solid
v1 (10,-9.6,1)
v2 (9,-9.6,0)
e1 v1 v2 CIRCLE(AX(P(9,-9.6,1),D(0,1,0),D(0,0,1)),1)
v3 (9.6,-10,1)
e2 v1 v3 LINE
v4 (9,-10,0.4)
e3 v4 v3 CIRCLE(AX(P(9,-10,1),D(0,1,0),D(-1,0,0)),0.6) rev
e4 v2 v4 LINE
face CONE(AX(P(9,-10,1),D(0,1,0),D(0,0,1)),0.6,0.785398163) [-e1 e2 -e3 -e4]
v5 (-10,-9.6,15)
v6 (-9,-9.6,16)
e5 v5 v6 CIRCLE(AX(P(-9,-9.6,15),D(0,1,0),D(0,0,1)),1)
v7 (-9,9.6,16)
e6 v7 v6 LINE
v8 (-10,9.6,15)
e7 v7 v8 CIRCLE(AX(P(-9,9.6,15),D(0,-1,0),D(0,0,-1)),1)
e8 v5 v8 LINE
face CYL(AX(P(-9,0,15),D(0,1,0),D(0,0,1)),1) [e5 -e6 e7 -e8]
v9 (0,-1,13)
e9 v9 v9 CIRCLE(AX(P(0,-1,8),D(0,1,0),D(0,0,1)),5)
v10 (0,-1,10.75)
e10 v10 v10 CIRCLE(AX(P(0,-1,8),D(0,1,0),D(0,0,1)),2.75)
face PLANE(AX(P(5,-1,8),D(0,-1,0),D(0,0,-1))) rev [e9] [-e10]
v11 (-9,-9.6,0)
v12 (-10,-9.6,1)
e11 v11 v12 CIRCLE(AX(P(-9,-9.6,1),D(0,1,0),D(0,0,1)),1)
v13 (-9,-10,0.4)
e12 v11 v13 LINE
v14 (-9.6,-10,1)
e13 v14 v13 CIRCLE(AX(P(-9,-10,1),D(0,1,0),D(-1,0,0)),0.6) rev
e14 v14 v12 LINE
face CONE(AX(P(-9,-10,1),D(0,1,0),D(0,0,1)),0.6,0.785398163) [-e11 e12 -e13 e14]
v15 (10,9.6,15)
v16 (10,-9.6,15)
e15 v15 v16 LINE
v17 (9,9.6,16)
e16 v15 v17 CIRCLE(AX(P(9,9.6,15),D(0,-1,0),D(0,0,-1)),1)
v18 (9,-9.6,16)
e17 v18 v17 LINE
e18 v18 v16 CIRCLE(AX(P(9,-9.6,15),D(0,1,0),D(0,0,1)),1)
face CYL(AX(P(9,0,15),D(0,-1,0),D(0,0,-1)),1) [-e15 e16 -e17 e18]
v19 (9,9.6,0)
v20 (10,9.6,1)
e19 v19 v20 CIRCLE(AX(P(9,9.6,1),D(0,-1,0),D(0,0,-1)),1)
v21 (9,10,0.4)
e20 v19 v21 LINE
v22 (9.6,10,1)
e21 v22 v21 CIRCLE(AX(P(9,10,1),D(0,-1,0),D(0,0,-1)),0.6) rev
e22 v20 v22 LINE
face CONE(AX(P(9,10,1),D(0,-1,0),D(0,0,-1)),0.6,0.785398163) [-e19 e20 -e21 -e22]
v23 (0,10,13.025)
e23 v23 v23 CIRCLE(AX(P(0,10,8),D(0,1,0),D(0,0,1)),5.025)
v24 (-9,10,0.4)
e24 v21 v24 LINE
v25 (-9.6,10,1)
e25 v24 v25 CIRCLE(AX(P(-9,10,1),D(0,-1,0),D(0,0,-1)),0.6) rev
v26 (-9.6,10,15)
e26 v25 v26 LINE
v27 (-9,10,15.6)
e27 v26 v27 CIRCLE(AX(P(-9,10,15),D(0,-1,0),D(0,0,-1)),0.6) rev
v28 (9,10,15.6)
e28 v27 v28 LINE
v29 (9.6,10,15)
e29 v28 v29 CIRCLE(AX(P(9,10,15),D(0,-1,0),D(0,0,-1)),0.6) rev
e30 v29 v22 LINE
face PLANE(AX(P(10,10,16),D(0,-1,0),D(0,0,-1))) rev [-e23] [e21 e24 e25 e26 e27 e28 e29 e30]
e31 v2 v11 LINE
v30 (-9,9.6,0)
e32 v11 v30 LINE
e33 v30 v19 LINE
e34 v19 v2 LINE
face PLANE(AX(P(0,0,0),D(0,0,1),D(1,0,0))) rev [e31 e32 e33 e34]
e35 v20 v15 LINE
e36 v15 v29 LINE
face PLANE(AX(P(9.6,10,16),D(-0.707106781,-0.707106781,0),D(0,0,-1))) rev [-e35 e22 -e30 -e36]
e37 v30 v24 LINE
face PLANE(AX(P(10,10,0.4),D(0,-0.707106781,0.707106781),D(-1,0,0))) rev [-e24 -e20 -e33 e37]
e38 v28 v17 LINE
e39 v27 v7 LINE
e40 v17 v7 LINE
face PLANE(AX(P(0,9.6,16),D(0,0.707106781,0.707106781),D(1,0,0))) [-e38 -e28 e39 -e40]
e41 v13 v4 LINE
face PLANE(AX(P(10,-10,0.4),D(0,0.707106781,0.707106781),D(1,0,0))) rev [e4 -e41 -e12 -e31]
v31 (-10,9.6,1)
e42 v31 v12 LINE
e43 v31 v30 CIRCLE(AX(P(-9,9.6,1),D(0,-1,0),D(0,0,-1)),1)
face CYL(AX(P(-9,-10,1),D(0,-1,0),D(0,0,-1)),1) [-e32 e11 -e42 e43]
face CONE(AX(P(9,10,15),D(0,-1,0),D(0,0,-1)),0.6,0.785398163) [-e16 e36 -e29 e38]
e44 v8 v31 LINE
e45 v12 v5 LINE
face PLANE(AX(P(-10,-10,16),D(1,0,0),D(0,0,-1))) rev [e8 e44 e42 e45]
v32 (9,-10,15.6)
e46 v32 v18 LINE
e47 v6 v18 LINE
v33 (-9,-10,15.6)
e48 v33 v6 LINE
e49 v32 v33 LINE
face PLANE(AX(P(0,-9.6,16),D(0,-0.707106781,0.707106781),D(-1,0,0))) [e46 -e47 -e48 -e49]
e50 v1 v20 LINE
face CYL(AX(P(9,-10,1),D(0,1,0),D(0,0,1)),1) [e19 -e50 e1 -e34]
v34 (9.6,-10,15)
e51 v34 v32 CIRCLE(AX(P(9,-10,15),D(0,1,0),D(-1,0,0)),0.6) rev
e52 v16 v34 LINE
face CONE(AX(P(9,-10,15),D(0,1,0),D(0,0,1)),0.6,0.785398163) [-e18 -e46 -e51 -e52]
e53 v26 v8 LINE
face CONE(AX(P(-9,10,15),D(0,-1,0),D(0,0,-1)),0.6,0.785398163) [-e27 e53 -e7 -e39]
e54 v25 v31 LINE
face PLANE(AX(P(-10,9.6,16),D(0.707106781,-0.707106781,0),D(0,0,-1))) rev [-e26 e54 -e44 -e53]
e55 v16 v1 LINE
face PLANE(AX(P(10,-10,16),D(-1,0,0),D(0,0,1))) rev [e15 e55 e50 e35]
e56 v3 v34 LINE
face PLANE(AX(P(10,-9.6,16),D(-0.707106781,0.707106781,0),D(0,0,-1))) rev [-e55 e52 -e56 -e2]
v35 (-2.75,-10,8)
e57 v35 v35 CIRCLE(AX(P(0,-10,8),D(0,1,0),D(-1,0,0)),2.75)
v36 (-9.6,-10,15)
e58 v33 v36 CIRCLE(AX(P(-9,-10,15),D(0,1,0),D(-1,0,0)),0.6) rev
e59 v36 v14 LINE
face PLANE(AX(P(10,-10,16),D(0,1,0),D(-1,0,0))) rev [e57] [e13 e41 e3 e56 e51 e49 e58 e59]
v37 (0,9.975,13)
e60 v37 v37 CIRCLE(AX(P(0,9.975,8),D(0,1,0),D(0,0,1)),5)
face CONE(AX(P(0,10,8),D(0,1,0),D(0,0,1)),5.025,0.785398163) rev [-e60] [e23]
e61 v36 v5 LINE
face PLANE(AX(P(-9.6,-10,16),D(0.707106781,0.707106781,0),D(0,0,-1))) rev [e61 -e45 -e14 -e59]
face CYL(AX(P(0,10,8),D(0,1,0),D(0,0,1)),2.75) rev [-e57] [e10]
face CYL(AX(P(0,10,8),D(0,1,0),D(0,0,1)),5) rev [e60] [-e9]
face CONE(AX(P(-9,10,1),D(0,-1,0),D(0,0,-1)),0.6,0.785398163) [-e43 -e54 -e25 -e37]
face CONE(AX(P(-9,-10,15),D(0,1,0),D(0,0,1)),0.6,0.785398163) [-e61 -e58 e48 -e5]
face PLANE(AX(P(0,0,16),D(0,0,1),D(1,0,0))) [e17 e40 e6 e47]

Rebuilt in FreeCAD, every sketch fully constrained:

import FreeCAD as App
import Part
import Sketcher

V = App.Vector
Q = App.Units.Quantity


def edges_at(feature, points):
    """Names of the edges that pass closest to the given points."""
    edges = feature.Shape.Edges
    near = lambda p: min(range(len(edges)), key=lambda i: edges[i].distToShape(Part.Vertex(*p))[0])
    return sorted({f"Edge{near(p) + 1}" for p in points})

doc = App.newDocument("Part")
body = doc.addObject("PartDesign::Body", "Body")

sketch1 = body.newObject("Sketcher::SketchObject", "Sketch")
sketch1.AttachmentSupport = (doc.getObject("XY_Plane"), [""])
sketch1.MapMode = "FlatFace"
sketch1.addGeometry([
    Part.LineSegment(V(-10, 10, 0), V(-10, -10, 0)),
    Part.LineSegment(V(-10, -10, 0), V(10, -10, 0)),
    Part.LineSegment(V(10, -10, 0), V(10, 10, 0)),
    Part.LineSegment(V(10, 10, 0), V(-10, 10, 0)),
], False)
sketch1.addConstraint([
    Sketcher.Constraint("Coincident", 0, 2, 1, 1),
    Sketcher.Constraint("Coincident", 1, 2, 2, 1),
    Sketcher.Constraint("Coincident", 2, 2, 3, 1),
    Sketcher.Constraint("Coincident", 3, 2, 0, 1),
    Sketcher.Constraint("Vertical", 0),
    Sketcher.Constraint("Horizontal", 1),
    Sketcher.Constraint("Vertical", 2),
    Sketcher.Constraint("Horizontal", 3),
    Sketcher.Constraint("Symmetric", 0, 2, 2, 2, -1, 1),
    Sketcher.Constraint("Equal", 3, 0),
    Sketcher.Constraint("DistanceX", 1, 1, 1, 2, Q("20 mm")),
])
pad1 = body.newObject("PartDesign::Pad", "Pad")
pad1.Profile = sketch1
pad1.Length = 16

sketch2 = body.newObject("Sketcher::SketchObject", "Sketch001")
sketch2.AttachmentSupport = (doc.getObject("YZ_Plane"), [""])
sketch2.MapMode = "FlatFace"
sketch2.addGeometry([
    Part.LineSegment(V(-10, 8, 0), V(10, 8, 0)),
    Part.LineSegment(V(10, 8, 0), V(10, 13.025, 0)),
    Part.LineSegment(V(10, 13.025, 0), V(9.975, 13, 0)),
    Part.LineSegment(V(9.975, 13, 0), V(-1, 13, 0)),
    Part.LineSegment(V(-1, 13, 0), V(-1, 10.75, 0)),
    Part.LineSegment(V(-1, 10.75, 0), V(-10, 10.75, 0)),
    Part.LineSegment(V(-10, 10.75, 0), V(-10, 8, 0)),
], False)
sketch2.addGeometry(Part.LineSegment(V(10, 8, 0), V(-10, 8, 0)), True)
sketch2.addConstraint([
    Sketcher.Constraint("Coincident", 0, 2, 1, 1),
    Sketcher.Constraint("Coincident", 1, 2, 2, 1),
    Sketcher.Constraint("Coincident", 2, 2, 3, 1),
    Sketcher.Constraint("Coincident", 3, 2, 4, 1),
    Sketcher.Constraint("Coincident", 4, 2, 5, 1),
    Sketcher.Constraint("Coincident", 5, 2, 6, 1),
    Sketcher.Constraint("Coincident", 6, 2, 0, 1),
    Sketcher.Constraint("Horizontal", 0),
    Sketcher.Constraint("Vertical", 1),
    Sketcher.Constraint("Horizontal", 3),
    Sketcher.Constraint("Vertical", 4),
    Sketcher.Constraint("Horizontal", 5),
    Sketcher.Constraint("Vertical", 6),
    Sketcher.Constraint("Horizontal", 7),
    Sketcher.Constraint("Coincident", 7, 1, 0, 2),
    Sketcher.Constraint("Vertical", 5, 2, 7, 2),
    Sketcher.Constraint("DistanceX", 0, 1, 0, 2, Q("20 mm")),
    Sketcher.Constraint("DistanceX", 5, 2, 5, 1, Q("9 mm")),
    Sketcher.Constraint("Angle", 2, Q("-135 deg")),
    Sketcher.Constraint("DistanceX", -1, 1, 0, 2, Q("10 mm")),
    Sketcher.Constraint("DistanceY", -1, 1, 0, 2, Q("8 mm")),
    Sketcher.Constraint("DistanceY", -1, 1, 2, 2, Q("13 mm")),
    Sketcher.Constraint("DistanceY", 4, 2, 4, 1, Q("2.25 mm")),
    Sketcher.Constraint("DistanceX", 3, 2, 3, 1, Q("10.975 mm")),
])
groove = body.newObject("PartDesign::Groove", "Groove")
groove.Profile = sketch2
groove.ReferenceAxis = (sketch2, ["Axis0"])
groove.Angle = 360
doc.recompute()

fillet = body.newObject("PartDesign::Fillet", "Fillet")
fillet.Base = (groove, edges_at(groove, [
    (10, 0, 16),
    (-10, 0, 16),
    (10, 0, 0),
    (-10, 0, 0),
]))
fillet.Radius = 1
doc.recompute()

chamfer = body.newObject("PartDesign::Chamfer", "Chamfer")
chamfer.Base = (fillet, edges_at(fillet, [
    (10, 10, 8),
    (10, -10, 8),
    (0, 10, 0),
    (-10, 10, 8),
    (0, 10, 16),
    (-9.707, 10, 15.707),
    (-9.707, 10, 0.293),
    (9.707, 10, 15.707),
    (9.707, 10, 0.293),
    (0, -10, 0),
    (0, -10, 16),
    (-10, -10, 8),
    (-9.707, -10, 15.707),
    (-9.707, -10, 0.293),
    (9.707, -10, 15.707),
    (9.707, -10, 0.293),
]))
chamfer.Size = 0.4

doc.recompute()
